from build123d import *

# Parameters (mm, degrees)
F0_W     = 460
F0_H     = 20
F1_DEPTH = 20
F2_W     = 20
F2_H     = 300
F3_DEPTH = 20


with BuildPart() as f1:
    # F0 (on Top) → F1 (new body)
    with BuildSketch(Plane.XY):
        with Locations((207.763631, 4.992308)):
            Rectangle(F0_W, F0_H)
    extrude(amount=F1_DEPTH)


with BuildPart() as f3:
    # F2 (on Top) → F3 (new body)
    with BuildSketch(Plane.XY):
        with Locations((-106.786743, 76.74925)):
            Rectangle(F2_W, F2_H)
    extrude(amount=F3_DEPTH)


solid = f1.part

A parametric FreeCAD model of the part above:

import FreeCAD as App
import Part
import Sketcher


def add_polygon(sketch, points):
    """Adds a closed chain of lines whose ends are joined by coincident constraints."""
    first, n = sketch.GeometryCount, len(points)
    for a, b in zip(points, points[1:] + points[:1]):
        sketch.addGeometry(Part.LineSegment(App.Vector(*a, 0), App.Vector(*b, 0)), False)
    for i in range(n):
        sketch.addConstraint(Sketcher.Constraint("Coincident", first + i, 2, first + (i + 1) % n, 1))

doc = App.newDocument("Part")
body = doc.addObject("PartDesign::Body", "Body")

sketch1 = body.newObject("Sketcher::SketchObject", "Sketch")
sketch1.AttachmentSupport = (doc.getObject("XY_Plane"), [""])
sketch1.MapMode = "FlatFace"
add_polygon(sketch1, [(-22, 15), (-22, -5), (438, -5), (438, 15)])
sketch1.addConstraint([
    Sketcher.Constraint("Vertical", 0),
    Sketcher.Constraint("Horizontal", 1),
    Sketcher.Constraint("Vertical", 2),
    Sketcher.Constraint("Horizontal", 3),
    Sketcher.Constraint("DistanceX", 1, 1, 1, 2, 460.0),
    Sketcher.Constraint("DistanceY", 0, 2, 0, 1, 20.0),
    Sketcher.Constraint("DistanceX", 0, 2, -1, 1, 22.236369),
    Sketcher.Constraint("DistanceY", 0, 2, -1, 1, 5.007692),
])
pad1 = body.newObject("PartDesign::Pad", "Pad")
pad1.Profile = sketch1
pad1.Length = 20
body2 = doc.addObject("PartDesign::Body", "Body001")

sketch2 = body2.newObject("Sketcher::SketchObject", "Sketch001")
sketch2.AttachmentSupport = (doc.getObject("XY_Plane001"), [""])
sketch2.MapMode = "FlatFace"
add_polygon(sketch2, [(-117, 227), (-117, -73), (-97, -73), (-97, 227)])
sketch2.addConstraint([
    Sketcher.Constraint("Vertical", 0),
    Sketcher.Constraint("Horizontal", 1),
    Sketcher.Constraint("Vertical", 2),
    Sketcher.Constraint("Horizontal", 3),
    Sketcher.Constraint("DistanceX", 1, 1, 1, 2, 20.0),
    Sketcher.Constraint("DistanceY", 0, 2, 0, 1, 300.0),
    Sketcher.Constraint("DistanceY", 0, 2, -1, 1, 73.25075),
    Sketcher.Constraint("DistanceX", 0, 2, -1, 1, 116.786743),
])
pad2 = body2.newObject("PartDesign::Pad", "Pad001")
pad2.Profile = sketch2
pad2.Length = 20
body2.Visibility = False

doc.recompute()
